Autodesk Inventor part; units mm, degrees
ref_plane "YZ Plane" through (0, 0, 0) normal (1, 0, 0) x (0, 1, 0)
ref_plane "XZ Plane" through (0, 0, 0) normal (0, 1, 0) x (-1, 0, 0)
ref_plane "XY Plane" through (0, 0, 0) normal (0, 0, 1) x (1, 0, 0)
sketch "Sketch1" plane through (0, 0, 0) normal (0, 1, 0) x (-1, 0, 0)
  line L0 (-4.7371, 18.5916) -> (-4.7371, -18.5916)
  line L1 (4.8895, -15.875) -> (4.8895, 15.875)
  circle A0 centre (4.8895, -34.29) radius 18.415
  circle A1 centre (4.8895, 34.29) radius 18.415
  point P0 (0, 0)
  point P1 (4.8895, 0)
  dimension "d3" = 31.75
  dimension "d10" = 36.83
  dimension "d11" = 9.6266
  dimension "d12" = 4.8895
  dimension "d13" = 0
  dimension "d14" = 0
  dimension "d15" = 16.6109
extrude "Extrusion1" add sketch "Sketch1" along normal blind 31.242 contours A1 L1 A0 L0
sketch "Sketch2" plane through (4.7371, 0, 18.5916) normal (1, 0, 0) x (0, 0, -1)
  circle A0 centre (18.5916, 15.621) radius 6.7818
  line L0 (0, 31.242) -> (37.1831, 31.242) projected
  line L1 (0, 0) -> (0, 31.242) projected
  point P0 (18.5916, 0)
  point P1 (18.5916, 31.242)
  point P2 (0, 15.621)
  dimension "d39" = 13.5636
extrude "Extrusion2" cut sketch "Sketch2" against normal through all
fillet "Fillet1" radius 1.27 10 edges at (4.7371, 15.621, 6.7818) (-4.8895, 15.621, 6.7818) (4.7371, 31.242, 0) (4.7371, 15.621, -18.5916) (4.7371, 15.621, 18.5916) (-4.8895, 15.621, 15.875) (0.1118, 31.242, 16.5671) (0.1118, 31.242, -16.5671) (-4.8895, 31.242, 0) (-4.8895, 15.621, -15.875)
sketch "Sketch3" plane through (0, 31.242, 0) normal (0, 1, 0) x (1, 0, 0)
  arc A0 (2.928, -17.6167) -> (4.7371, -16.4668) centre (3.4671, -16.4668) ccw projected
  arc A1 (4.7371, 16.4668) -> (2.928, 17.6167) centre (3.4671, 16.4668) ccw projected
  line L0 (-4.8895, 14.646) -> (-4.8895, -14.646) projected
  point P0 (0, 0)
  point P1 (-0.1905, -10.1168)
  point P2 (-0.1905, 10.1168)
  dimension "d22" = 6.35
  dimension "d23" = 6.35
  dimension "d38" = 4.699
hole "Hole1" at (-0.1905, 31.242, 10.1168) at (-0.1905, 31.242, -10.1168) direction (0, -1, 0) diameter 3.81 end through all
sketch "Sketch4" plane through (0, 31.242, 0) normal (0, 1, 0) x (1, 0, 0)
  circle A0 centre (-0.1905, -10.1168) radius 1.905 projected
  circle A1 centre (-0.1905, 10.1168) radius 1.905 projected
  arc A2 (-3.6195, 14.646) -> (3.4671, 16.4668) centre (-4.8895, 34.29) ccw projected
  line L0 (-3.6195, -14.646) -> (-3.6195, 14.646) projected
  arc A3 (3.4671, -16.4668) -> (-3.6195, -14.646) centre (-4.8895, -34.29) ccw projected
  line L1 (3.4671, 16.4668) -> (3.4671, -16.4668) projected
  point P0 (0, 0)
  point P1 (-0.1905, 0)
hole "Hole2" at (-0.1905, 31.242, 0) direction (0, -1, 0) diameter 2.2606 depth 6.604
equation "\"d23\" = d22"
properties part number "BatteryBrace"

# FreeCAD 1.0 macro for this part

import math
import FreeCAD as App
import Part
import Sketcher
Q = App.Units.Quantity


def edges_at(feature, points):
    """Names of the edges that pass closest to the given points."""
    edges = feature.Shape.Edges
    near = lambda p: min(range(len(edges)), key=lambda i: edges[i].distToShape(Part.Vertex(*p))[0])
    return sorted({f"Edge{near(p) + 1}" for p in points})

doc = App.newDocument("Part")
params = doc.addObject("Spreadsheet::Sheet", "Params")
for row, (alias, value) in enumerate([
    ("sketch1_radius", "0.725 in"),
    ("sketch1_height", "1.25 in"),
    ("sketch1_width", "0.379 in"),
    ("pad1_length", "1.23 in"),
    ("sketch2_diameter", "0.534 in"),
    ("fillet_radius", "0.05 in"),
    ("sketch3_diameter", "0.15 in"),
    ("hole_diameter", "0.15 in"),
    ("sketch4_diameter", "0.089 in"),
    ("hole2_diameter", "0.089 in"),
    ("hole2_depth", "0.26 in"),
], start=1):
    params.set(f"A{row}", alias)
    params.set(f"B{row}", "=" + value)
    params.setAlias(f"B{row}", alias)

body = doc.addObject("PartDesign::Body", "Body")

sketch1 = body.newObject("Sketcher::SketchObject", "Sketch")
sketch1.AttachmentSupport = (doc.getObject("XZ_Plane"), [""])
sketch1.MapMode = "FlatFace"
sketch1.addGeometry(Part.ArcOfCircle(Part.Circle(App.Vector(-5, 34, 0), App.Vector(0, 0, 1), 18), math.radians(-90), math.radians(-58)), False)
sketch1.addGeometry(Part.LineSegment(App.Vector(5, 19, 0), App.Vector(5, -19, 0)), False)
sketch1.addGeometry(Part.ArcOfCircle(Part.Circle(App.Vector(-5, -34, 0), App.Vector(0, 0, 1), 18), math.radians(58), math.radians(90)), False)
sketch1.addGeometry(Part.LineSegment(App.Vector(-5, -16, 0), App.Vector(-5, 16, 0)), False)
sketch1.addConstraint(Sketcher.Constraint("Coincident", 0, 2, 1, 1))
sketch1.addConstraint(Sketcher.Constraint("Coincident", 1, 2, 2, 1))
sketch1.addConstraint(Sketcher.Constraint("Coincident", 2, 2, 3, 1))
sketch1.addConstraint(Sketcher.Constraint("Coincident", 3, 2, 0, 1))
sketch1.addConstraint(Sketcher.Constraint("Vertical", 1))
sketch1.addConstraint(Sketcher.Constraint("Vertical", 3))
sketch1.addConstraint(Sketcher.Constraint("Equal", 0, 2))
sketch1.addConstraint(Sketcher.Constraint("Symmetric", 0, 3, 2, 3, -1))
sketch1.addConstraint(Sketcher.Constraint("Vertical", 0, 3, 2, 2))
sketch1.addConstraint(Sketcher.Constraint("Radius", 0, Q("0.725 in")))
sketch1.addConstraint(Sketcher.Constraint("DistanceY", 3, 1, 3, 2, Q("1.25 in")))
sketch1.addConstraint(Sketcher.Constraint("DistanceX", 0, 3, 0, 2, Q("0.379 in")))
sketch1.addConstraint(Sketcher.Constraint("DistanceX", 0, 3, -1, 1, Q("0.1925 in")))
sketch1.setExpression("Constraints[9]", "Params.sketch1_radius")
sketch1.setExpression("Constraints[10]", "Params.sketch1_height")
sketch1.setExpression("Constraints[11]", "Params.sketch1_width")
pad1 = body.newObject("PartDesign::Pad", "Pad")
pad1.Profile = sketch1
pad1.setExpression("Length", "Params.pad1_length")
pad1.Reversed = True

sketch2 = body.newObject("Sketcher::SketchObject", "Sketch001")
sketch2.AttachmentSupport = (doc.getObject("YZ_Plane"), [""])
sketch2.MapMode = "FlatFace"
sketch2.AttachmentOffset = App.Placement(App.Vector(0, 0, 0.1865 * 25.4), App.Rotation())
sketch2.addGeometry(Part.Circle(App.Vector(16, 0, 0), App.Vector(0, 0, 1), 7), False)
sketch2.addConstraint(Sketcher.Constraint("PointOnObject", 0, 3, -1))
sketch2.addConstraint(Sketcher.Constraint("Diameter", 0, Q("0.534 in")))
sketch2.addConstraint(Sketcher.Constraint("DistanceX", -1, 1, 0, 3, Q("0.615 in")))
sketch2.setExpression("Constraints[1]", "Params.sketch2_diameter")
pocket1 = body.newObject("PartDesign::Pocket", "Pocket")
pocket1.Profile = sketch2
pocket1.Type = "ThroughAll"
doc.recompute()

fillet = body.newObject("PartDesign::Fillet", "Fillet")
fillet.Base = (pocket1, edges_at(pocket1, [
    (4.737, 15.621, 6.782),
    (-4.889, 15.621, 6.782),
    (4.737, 31.242, 0),
    (4.737, 15.621, -18.592),
    (4.737, 15.621, 18.592),
    (-4.889, 15.621, 15.875),
    (0.112, 31.242, 16.567),
    (0.112, 31.242, -16.567),
    (-4.889, 31.242, 0),
    (-4.889, 15.621, -15.875),
]))
fillet.setExpression("Radius", "Params.fillet_radius")

sketch3 = body.newObject("Sketcher::SketchObject", "Sketch002")
sketch3.AttachmentSupport = (doc.getObject("XZ_Plane"), [""])
sketch3.MapMode = "FlatFace"
sketch3.AttachmentOffset = App.Placement(App.Vector(0, 0, -1.23 * 25.4), App.Rotation())
sketch3.addGeometry(Part.Circle(App.Vector(-0.2, 10.1, 0), App.Vector(0, 0, 1), 1.9), False)
sketch3.addGeometry(Part.Circle(App.Vector(-0.2, -10.1, 0), App.Vector(0, 0, 1), 1.9), False)
sketch3.addConstraint(Sketcher.Constraint("Equal", 0, 1))
sketch3.addConstraint(Sketcher.Constraint("Symmetric", 0, 3, 1, 3, -1))
sketch3.addConstraint(Sketcher.Constraint("Diameter", 0, Q("0.15 in")))
sketch3.addConstraint(Sketcher.Constraint("DistanceX", 0, 3, -1, 1, Q("0.0075 in")))
sketch3.addConstraint(Sketcher.Constraint("DistanceY", -1, 1, 0, 3, Q("0.3983 in")))
sketch3.setExpression("Constraints[2]", "Params.sketch3_diameter")
doc.recompute()
hole = body.newObject("PartDesign::Hole", "Hole")
hole.Profile = sketch3
hole.ThreadType = "None"
hole.setExpression("Diameter", "Params.hole_diameter")
hole.DepthType = "ThroughAll"
hole.Reversed = True

sketch4 = body.newObject("Sketcher::SketchObject", "Sketch003")
sketch4.AttachmentSupport = (doc.getObject("XZ_Plane"), [""])
sketch4.MapMode = "FlatFace"
sketch4.AttachmentOffset = App.Placement(App.Vector(0, 0, -1.23 * 25.4), App.Rotation())
sketch4.addGeometry(Part.Circle(App.Vector(-0.2, 0, 0), App.Vector(0, 0, 1), 1.1), False)
sketch4.addConstraint(Sketcher.Constraint("PointOnObject", 0, 3, -1))
sketch4.addConstraint(Sketcher.Constraint("Diameter", 0, Q("0.089 in")))
sketch4.addConstraint(Sketcher.Constraint("DistanceX", 0, 3, -1, 1, Q("0.0075 in")))
sketch4.setExpression("Constraints[1]", "Params.sketch4_diameter")
doc.recompute()
hole2 = body.newObject("PartDesign::Hole", "Hole001")
hole2.Profile = sketch4
hole2.ThreadType = "None"
hole2.setExpression("Diameter", "Params.hole2_diameter")
hole2.DepthType = "Dimension"
hole2.setExpression("Depth", "Params.hole2_depth")
hole2.DrillPoint = "Flat"
hole2.Reversed = True

doc.recompute()
